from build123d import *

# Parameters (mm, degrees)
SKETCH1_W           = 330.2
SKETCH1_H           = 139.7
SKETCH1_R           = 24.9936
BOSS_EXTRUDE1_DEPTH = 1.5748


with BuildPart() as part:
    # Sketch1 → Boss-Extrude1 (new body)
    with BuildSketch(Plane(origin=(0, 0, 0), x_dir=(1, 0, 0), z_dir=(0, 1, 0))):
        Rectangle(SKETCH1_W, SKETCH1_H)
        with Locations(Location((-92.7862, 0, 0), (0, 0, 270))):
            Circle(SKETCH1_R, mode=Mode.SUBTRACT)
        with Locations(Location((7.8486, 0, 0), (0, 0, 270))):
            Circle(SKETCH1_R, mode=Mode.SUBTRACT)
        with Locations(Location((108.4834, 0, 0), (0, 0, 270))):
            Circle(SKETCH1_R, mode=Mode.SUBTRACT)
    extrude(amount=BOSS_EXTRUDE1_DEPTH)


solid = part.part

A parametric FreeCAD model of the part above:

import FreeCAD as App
import Part
import Sketcher
from FreeCAD import Vector
Q = App.Units.Quantity


def add_polygon(sketch, points):
    """Adds a closed chain of lines whose ends are joined by coincident constraints."""
    first, n = sketch.GeometryCount, len(points)
    for a, b in zip(points, points[1:] + points[:1]):
        sketch.addGeometry(Part.LineSegment(App.Vector(*a, 0), App.Vector(*b, 0)), False)
    for i in range(n):
        sketch.addConstraint(Sketcher.Constraint("Coincident", first + i, 2, first + (i + 1) % n, 1))

doc = App.newDocument("Part")
body = doc.addObject("PartDesign::Body", "Body")

# Sketch on XZ plane
sketch1 = doc.addObject("Sketcher::SketchObject", "Sketch")
body.addObject(sketch1)
sketch1.AttachmentSupport = (doc.XZ_Plane, [""])
sketch1.MapMode = "FlatFace"
add_polygon(sketch1, [(-165.1, -69.85), (-165.1, 69.85), (165.1, 69.85), (165.1, -69.85)])  # lines 0-3
sketch1.addGeometry(Part.Circle(Vector(-92.7862, 0, 0), Vector(0, 0, 1), 24.9936), False)  # 4
sketch1.addGeometry(Part.Circle(Vector(7.8486, 0, 0), Vector(0, 0, 1), 24.9936), False)  # 5
sketch1.addGeometry(Part.Circle(Vector(108.4834, 0, 0), Vector(0, 0, 1), 24.9936), False)  # 6
sketch1.addConstraint([
    Sketcher.Constraint("Vertical", 0),
    Sketcher.Constraint("Horizontal", 1),
    Sketcher.Constraint("Vertical", 2),
    Sketcher.Constraint("Horizontal", 3),
    Sketcher.Constraint("Equal", 4, 5),
    Sketcher.Constraint("Equal", 5, 6),
    Sketcher.Constraint("Symmetric", 0, 2, 2, 2, -1, 1),
    Sketcher.Constraint("PointOnObject", 4, 3, -1),
    Sketcher.Constraint("PointOnObject", 5, 3, -1),
    Sketcher.Constraint("PointOnObject", 6, 3, -1),
    Sketcher.Constraint("DistanceX", 1, 1, 1, 2, Q("13 in")),
    Sketcher.Constraint("Diameter", 4, Q("1.968 in")),
    Sketcher.Constraint("DistanceY", 0, 1, 0, 2, Q("5.5 in")),
    Sketcher.Constraint("DistanceX", 4, 3, -1, 1, Q("3.653 in")),
    Sketcher.Constraint("DistanceX", -1, 1, 5, 3, Q("0.309 in")),
    Sketcher.Constraint("DistanceX", -1, 1, 6, 3, Q("4.271 in")),
])
pad1 = doc.addObject("PartDesign::Pad", "Pad")
body.addObject(pad1)
pad1.Profile = sketch1
pad1.Length = Q("0.062 in")
pad1.Reversed = True

doc.recompute()
